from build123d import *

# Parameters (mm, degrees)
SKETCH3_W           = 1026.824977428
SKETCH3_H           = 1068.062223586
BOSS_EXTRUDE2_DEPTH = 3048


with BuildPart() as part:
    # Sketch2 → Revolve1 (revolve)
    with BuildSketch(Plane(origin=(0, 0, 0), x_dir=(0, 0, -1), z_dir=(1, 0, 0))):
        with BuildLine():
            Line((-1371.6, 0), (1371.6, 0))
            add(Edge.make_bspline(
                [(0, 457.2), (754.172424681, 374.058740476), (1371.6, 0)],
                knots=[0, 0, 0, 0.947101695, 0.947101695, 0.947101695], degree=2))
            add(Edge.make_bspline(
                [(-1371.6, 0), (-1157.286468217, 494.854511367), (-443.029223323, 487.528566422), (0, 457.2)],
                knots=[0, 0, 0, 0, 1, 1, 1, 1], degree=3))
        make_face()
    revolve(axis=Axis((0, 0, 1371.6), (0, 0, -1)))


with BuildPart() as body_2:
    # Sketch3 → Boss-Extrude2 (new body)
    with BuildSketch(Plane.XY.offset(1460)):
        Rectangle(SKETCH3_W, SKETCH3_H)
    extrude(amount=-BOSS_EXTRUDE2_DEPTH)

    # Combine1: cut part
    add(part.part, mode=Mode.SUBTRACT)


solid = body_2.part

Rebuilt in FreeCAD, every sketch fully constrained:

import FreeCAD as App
import Part
import Sketcher
from FreeCAD import Vector
Q = App.Units.Quantity

doc = App.newDocument("Part")
body = doc.addObject("PartDesign::Body", "Body")

sketch1 = doc.addObject("Sketcher::SketchObject", "Sketch")
body.addObject(sketch1)
sketch1.AttachmentSupport = (doc.YZ_Plane, [""])
sketch1.MapMode = "FlatFace"
sketch1.addGeometry([
    Part.LineSegment(Vector(0, 1371.6, 0), Vector(0, -1371.6, 0)),
    Part.BSplineCurve([Vector(457.2, 0, 0), Vector(374.05874, -754.172425, 0), Vector(0, -1371.6, 0)], [3, 3], [0, 0.947101695], False, 2, [1, 1, 1], False),
    Part.BSplineCurve([Vector(0, 1371.6, 0), Vector(494.854511, 1157.286468, 0), Vector(487.528566, 443.029223, 0), Vector(457.2, 0, 0)], [4, 4], [0, 1], False, 3, [1, 1, 1, 1], False),
], False)
sketch1.addConstraint([
    Sketcher.Constraint("Block", 1),
    Sketcher.Constraint("Block", 2),
    Sketcher.Constraint("Coincident", 0, 2, 1, 2),
    Sketcher.Constraint("Coincident", 2, 1, 0, 1),
])
revolution = doc.addObject("PartDesign::Revolution", "Revolution")
body.addObject(revolution)
revolution.Profile = sketch1
revolution.ReferenceAxis = (sketch1, ["V_Axis"])
revolution.Angle = 360
body2 = doc.addObject("PartDesign::Body", "Body001")

sketch2 = doc.addObject("Sketcher::SketchObject", "Sketch001")
body2.addObject(sketch2)
sketch2.AttachmentSupport = (doc.getObject("XY_Plane001"), [""])
sketch2.MapMode = "FlatFace"
sketch2.AttachmentOffset = App.Placement(Vector(0, 0, 1460), App.Rotation())
sketch2.addGeometry([
    Part.LineSegment(Vector(-513, 534, 0), Vector(-513, -534, 0)),
    Part.LineSegment(Vector(-513, -534, 0), Vector(513, -534, 0)),
    Part.LineSegment(Vector(513, -534, 0), Vector(513, 534, 0)),
    Part.LineSegment(Vector(513, 534, 0), Vector(-513, 534, 0)),
], False)
sketch2.addConstraint([
    Sketcher.Constraint("Coincident", 0, 2, 1, 1),
    Sketcher.Constraint("Coincident", 1, 2, 2, 1),
    Sketcher.Constraint("Coincident", 2, 2, 3, 1),
    Sketcher.Constraint("Coincident", 3, 2, 0, 1),
    Sketcher.Constraint("Vertical", 0),
    Sketcher.Constraint("Horizontal", 1),
    Sketcher.Constraint("Vertical", 2),
    Sketcher.Constraint("Horizontal", 3),
    Sketcher.Constraint("Symmetric", 0, 2, 2, 2, -1, 1),
    Sketcher.Constraint("DistanceX", 1, 1, 1, 2, Q("1026.824977 mm")),
    Sketcher.Constraint("DistanceY", 0, 2, 0, 1, Q("1068.062224 mm")),
])
pad1 = doc.addObject("PartDesign::Pad", "Pad")
body2.addObject(pad1)
pad1.Profile = sketch2
pad1.Length = Q("120 in")
pad1.Reversed = True
doc.recompute()

boolean = doc.addObject("PartDesign::Boolean", "Boolean")
body2.addObject(boolean)
boolean.Type = "Cut"
boolean.addObjects([body])

doc.recompute()
